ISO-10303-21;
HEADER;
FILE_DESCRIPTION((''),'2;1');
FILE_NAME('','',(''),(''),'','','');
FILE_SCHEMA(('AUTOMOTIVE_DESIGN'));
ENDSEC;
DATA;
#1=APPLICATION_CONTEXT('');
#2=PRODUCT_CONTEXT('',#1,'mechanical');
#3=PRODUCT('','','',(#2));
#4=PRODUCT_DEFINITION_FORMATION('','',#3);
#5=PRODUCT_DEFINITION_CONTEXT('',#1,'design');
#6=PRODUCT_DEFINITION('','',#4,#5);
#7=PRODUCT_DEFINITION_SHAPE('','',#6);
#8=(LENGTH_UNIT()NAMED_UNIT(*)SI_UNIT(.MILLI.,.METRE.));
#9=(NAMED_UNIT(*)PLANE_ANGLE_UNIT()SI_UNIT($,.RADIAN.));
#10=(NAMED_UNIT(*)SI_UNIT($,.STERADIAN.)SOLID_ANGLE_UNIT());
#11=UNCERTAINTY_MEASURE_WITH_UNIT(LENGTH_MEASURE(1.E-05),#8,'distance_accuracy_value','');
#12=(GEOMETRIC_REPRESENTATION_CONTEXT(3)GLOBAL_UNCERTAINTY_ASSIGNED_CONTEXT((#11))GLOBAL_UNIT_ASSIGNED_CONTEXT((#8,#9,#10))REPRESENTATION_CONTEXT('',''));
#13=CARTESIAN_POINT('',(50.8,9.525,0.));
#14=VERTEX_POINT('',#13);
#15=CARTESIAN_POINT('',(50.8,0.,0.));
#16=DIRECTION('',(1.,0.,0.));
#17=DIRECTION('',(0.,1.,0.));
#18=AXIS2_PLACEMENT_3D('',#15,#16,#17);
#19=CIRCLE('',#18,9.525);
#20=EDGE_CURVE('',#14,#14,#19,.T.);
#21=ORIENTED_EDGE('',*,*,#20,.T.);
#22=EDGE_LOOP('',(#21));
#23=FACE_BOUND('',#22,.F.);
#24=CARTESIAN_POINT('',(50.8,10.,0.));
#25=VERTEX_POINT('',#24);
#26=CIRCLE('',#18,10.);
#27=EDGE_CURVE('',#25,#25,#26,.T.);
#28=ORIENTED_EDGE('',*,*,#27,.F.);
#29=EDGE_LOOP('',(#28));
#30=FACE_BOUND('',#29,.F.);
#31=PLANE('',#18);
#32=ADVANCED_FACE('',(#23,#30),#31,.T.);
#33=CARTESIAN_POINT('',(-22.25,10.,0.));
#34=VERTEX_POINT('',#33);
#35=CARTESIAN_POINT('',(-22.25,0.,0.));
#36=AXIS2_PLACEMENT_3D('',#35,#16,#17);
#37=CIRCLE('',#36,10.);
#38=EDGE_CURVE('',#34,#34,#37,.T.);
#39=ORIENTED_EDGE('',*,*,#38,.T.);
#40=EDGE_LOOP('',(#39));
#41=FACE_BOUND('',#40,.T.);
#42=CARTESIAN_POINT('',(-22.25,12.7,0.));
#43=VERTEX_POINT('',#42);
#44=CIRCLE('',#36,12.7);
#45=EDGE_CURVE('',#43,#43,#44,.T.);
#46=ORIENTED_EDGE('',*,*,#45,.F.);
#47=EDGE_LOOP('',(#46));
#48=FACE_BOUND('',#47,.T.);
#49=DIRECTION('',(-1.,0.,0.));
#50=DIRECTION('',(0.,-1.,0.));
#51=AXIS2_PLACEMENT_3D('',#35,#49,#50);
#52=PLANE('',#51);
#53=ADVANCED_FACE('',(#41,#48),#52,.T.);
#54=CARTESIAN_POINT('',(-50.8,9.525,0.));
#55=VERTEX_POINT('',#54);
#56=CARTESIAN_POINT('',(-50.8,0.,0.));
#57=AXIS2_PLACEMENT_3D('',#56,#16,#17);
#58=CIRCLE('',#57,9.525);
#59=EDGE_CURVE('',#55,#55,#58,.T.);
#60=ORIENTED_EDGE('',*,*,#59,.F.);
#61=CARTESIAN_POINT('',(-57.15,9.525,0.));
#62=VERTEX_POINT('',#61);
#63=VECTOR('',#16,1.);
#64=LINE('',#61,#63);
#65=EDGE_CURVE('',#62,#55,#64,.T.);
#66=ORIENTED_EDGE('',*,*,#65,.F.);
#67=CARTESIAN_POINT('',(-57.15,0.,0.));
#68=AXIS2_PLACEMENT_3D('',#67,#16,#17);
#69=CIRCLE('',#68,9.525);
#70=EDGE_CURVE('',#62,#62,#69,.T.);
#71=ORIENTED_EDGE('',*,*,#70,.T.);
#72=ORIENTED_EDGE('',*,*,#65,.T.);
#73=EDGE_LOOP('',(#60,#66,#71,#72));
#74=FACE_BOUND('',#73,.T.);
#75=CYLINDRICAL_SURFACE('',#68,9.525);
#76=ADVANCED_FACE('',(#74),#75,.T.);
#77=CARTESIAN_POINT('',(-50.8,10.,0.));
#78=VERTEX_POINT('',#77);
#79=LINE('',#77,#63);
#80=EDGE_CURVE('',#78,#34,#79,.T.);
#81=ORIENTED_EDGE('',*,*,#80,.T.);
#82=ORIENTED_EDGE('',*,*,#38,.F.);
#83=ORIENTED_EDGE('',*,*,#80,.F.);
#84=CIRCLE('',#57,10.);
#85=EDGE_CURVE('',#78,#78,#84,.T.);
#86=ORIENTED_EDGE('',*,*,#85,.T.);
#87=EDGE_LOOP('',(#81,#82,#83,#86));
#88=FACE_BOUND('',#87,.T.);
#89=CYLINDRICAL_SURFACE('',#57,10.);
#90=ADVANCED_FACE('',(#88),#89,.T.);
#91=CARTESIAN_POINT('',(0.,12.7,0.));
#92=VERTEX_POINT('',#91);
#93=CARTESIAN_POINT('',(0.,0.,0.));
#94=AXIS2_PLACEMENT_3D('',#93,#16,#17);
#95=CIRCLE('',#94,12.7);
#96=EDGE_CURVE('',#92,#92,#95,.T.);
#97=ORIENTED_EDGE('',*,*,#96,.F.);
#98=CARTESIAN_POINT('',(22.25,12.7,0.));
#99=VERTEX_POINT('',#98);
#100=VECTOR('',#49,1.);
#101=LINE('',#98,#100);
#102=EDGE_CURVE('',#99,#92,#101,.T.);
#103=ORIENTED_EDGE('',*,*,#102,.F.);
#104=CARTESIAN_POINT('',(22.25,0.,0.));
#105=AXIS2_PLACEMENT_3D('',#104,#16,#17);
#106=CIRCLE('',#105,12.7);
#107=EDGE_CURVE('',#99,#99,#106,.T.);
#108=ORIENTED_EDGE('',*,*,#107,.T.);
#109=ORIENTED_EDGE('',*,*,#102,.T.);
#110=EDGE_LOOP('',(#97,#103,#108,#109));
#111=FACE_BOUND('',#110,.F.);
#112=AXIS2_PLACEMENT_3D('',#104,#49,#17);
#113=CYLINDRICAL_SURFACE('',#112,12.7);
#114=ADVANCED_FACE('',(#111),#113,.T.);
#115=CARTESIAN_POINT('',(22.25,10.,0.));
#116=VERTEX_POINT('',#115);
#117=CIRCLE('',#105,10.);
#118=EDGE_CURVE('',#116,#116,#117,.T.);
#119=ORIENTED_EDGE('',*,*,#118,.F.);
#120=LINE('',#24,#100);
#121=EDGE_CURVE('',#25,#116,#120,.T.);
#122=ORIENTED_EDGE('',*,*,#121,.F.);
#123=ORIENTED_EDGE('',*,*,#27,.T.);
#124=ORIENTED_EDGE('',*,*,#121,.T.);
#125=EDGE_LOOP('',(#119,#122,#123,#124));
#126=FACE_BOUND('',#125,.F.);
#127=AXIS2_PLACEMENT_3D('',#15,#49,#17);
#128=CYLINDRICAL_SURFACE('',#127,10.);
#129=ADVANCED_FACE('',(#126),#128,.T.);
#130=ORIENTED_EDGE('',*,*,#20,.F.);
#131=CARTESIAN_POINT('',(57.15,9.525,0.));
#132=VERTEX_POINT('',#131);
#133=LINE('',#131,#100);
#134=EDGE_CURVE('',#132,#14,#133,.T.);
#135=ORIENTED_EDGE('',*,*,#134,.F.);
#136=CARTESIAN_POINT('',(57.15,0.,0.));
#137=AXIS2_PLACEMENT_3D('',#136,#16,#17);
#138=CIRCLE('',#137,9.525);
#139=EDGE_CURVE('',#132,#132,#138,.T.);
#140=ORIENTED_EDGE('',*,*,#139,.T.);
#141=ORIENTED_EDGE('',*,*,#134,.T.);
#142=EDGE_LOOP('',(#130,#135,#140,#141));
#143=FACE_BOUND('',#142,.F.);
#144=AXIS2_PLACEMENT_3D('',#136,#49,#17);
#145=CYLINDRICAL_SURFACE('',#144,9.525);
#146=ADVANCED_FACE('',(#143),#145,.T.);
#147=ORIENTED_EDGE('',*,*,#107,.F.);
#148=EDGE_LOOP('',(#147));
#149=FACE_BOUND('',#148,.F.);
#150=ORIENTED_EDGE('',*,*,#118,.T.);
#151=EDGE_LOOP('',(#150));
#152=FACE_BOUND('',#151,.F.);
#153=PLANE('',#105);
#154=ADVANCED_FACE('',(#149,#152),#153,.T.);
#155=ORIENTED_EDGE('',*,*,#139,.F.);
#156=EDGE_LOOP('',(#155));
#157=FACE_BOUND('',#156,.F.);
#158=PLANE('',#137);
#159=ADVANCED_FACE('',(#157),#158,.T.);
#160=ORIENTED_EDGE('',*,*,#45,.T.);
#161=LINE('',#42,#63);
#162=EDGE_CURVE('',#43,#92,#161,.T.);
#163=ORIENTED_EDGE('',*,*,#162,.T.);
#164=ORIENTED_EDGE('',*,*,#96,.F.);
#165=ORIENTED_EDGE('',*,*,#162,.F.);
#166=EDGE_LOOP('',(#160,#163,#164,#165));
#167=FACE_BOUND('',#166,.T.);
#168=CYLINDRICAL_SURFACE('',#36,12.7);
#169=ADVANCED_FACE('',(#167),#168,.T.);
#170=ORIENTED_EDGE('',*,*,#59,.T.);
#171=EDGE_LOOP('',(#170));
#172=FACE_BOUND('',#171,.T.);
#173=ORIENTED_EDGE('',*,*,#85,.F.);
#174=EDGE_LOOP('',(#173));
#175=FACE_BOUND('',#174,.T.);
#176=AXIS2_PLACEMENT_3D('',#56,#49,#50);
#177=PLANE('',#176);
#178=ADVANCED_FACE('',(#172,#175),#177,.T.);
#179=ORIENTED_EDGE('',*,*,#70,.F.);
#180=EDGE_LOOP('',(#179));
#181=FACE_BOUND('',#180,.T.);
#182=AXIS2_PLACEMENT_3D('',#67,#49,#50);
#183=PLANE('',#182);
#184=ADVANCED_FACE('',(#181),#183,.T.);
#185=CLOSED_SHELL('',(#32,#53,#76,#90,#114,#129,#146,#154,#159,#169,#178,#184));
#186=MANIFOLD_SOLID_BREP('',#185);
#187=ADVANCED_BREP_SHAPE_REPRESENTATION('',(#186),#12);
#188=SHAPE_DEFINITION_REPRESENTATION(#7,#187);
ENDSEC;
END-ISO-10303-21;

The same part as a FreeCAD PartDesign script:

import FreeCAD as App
import Part
import Sketcher
Q = App.Units.Quantity

doc = App.newDocument("Part")
body = doc.addObject("PartDesign::Body", "Body")

sketch1 = body.newObject("Sketcher::SketchObject", "Sketch")
sketch1.AttachmentSupport = (doc.getObject("XY_Plane"), [""])
sketch1.MapMode = "FlatFace"
sketch1.addGeometry(Part.LineSegment(App.Vector(22.25, 12.7, 0), App.Vector(0, 12.7, 0)), False)
sketch1.addGeometry(Part.LineSegment(App.Vector(0, 12.7, 0), App.Vector(0, 0, 0)), False)
sketch1.addGeometry(Part.LineSegment(App.Vector(0, 0, 0), App.Vector(57.15, 0, 0)), False)
sketch1.addGeometry(Part.LineSegment(App.Vector(57.15, 0, 0), App.Vector(57.15, 9.525, 0)), False)
sketch1.addGeometry(Part.LineSegment(App.Vector(57.15, 9.525, 0), App.Vector(50.8, 9.525, 0)), False)
sketch1.addGeometry(Part.LineSegment(App.Vector(50.8, 9.525, 0), App.Vector(50.8, 10, 0)), False)
sketch1.addGeometry(Part.LineSegment(App.Vector(50.8, 10, 0), App.Vector(22.25, 10, 0)), False)
sketch1.addGeometry(Part.LineSegment(App.Vector(22.25, 10, 0), App.Vector(22.25, 12.7, 0)), False)
sketch1.addConstraint(Sketcher.Constraint("Coincident", 0, 2, 1, 1))
sketch1.addConstraint(Sketcher.Constraint("Coincident", 1, 2, 2, 1))
sketch1.addConstraint(Sketcher.Constraint("Coincident", 2, 2, 3, 1))
sketch1.addConstraint(Sketcher.Constraint("Coincident", 3, 2, 4, 1))
sketch1.addConstraint(Sketcher.Constraint("Coincident", 4, 2, 5, 1))
sketch1.addConstraint(Sketcher.Constraint("Coincident", 5, 2, 6, 1))
sketch1.addConstraint(Sketcher.Constraint("Coincident", 6, 2, 7, 1))
sketch1.addConstraint(Sketcher.Constraint("Coincident", 7, 2, 0, 1))
sketch1.addConstraint(Sketcher.Constraint("Horizontal", 0))
sketch1.addConstraint(Sketcher.Constraint("Vertical", 1))
sketch1.addConstraint(Sketcher.Constraint("Horizontal", 2))
sketch1.addConstraint(Sketcher.Constraint("Vertical", 3))
sketch1.addConstraint(Sketcher.Constraint("Horizontal", 4))
sketch1.addConstraint(Sketcher.Constraint("Vertical", 5))
sketch1.addConstraint(Sketcher.Constraint("Horizontal", 6))
sketch1.addConstraint(Sketcher.Constraint("Vertical", 7))
sketch1.addConstraint(Sketcher.Constraint("Coincident", 1, 2, -1, 1))
sketch1.addConstraint(Sketcher.Constraint("DistanceY", 1, 2, 1, 1, Q("0.5 in")))
sketch1.addConstraint(Sketcher.Constraint("DistanceX", 2, 1, 2, 2, Q("2.25 in")))
sketch1.addConstraint(Sketcher.Constraint("DistanceX", 4, 2, 4, 1, Q("0.25 in")))
sketch1.addConstraint(Sketcher.Constraint("DistanceY", 3, 1, 3, 2, Q("0.375 in")))
sketch1.addConstraint(Sketcher.Constraint("DistanceX", 0, 2, 0, 1, Q("22.25 mm")))
sketch1.addConstraint(Sketcher.Constraint("DistanceY", -1, 1, 5, 2, Q("0.3937 in")))
revolution = body.newObject("PartDesign::Revolution", "Revolution")
revolution.Profile = sketch1
revolution.ReferenceAxis = (sketch1, ["H_Axis"])
revolution.Angle = 360
doc.recompute()

mirrored = body.newObject("PartDesign::Mirrored", "Mirrored")
mirrored.Originals = [revolution]
mirrored.MirrorPlane = (doc.getObject("YZ_Plane"), [""])
body.Tip = mirrored

doc.recompute()
